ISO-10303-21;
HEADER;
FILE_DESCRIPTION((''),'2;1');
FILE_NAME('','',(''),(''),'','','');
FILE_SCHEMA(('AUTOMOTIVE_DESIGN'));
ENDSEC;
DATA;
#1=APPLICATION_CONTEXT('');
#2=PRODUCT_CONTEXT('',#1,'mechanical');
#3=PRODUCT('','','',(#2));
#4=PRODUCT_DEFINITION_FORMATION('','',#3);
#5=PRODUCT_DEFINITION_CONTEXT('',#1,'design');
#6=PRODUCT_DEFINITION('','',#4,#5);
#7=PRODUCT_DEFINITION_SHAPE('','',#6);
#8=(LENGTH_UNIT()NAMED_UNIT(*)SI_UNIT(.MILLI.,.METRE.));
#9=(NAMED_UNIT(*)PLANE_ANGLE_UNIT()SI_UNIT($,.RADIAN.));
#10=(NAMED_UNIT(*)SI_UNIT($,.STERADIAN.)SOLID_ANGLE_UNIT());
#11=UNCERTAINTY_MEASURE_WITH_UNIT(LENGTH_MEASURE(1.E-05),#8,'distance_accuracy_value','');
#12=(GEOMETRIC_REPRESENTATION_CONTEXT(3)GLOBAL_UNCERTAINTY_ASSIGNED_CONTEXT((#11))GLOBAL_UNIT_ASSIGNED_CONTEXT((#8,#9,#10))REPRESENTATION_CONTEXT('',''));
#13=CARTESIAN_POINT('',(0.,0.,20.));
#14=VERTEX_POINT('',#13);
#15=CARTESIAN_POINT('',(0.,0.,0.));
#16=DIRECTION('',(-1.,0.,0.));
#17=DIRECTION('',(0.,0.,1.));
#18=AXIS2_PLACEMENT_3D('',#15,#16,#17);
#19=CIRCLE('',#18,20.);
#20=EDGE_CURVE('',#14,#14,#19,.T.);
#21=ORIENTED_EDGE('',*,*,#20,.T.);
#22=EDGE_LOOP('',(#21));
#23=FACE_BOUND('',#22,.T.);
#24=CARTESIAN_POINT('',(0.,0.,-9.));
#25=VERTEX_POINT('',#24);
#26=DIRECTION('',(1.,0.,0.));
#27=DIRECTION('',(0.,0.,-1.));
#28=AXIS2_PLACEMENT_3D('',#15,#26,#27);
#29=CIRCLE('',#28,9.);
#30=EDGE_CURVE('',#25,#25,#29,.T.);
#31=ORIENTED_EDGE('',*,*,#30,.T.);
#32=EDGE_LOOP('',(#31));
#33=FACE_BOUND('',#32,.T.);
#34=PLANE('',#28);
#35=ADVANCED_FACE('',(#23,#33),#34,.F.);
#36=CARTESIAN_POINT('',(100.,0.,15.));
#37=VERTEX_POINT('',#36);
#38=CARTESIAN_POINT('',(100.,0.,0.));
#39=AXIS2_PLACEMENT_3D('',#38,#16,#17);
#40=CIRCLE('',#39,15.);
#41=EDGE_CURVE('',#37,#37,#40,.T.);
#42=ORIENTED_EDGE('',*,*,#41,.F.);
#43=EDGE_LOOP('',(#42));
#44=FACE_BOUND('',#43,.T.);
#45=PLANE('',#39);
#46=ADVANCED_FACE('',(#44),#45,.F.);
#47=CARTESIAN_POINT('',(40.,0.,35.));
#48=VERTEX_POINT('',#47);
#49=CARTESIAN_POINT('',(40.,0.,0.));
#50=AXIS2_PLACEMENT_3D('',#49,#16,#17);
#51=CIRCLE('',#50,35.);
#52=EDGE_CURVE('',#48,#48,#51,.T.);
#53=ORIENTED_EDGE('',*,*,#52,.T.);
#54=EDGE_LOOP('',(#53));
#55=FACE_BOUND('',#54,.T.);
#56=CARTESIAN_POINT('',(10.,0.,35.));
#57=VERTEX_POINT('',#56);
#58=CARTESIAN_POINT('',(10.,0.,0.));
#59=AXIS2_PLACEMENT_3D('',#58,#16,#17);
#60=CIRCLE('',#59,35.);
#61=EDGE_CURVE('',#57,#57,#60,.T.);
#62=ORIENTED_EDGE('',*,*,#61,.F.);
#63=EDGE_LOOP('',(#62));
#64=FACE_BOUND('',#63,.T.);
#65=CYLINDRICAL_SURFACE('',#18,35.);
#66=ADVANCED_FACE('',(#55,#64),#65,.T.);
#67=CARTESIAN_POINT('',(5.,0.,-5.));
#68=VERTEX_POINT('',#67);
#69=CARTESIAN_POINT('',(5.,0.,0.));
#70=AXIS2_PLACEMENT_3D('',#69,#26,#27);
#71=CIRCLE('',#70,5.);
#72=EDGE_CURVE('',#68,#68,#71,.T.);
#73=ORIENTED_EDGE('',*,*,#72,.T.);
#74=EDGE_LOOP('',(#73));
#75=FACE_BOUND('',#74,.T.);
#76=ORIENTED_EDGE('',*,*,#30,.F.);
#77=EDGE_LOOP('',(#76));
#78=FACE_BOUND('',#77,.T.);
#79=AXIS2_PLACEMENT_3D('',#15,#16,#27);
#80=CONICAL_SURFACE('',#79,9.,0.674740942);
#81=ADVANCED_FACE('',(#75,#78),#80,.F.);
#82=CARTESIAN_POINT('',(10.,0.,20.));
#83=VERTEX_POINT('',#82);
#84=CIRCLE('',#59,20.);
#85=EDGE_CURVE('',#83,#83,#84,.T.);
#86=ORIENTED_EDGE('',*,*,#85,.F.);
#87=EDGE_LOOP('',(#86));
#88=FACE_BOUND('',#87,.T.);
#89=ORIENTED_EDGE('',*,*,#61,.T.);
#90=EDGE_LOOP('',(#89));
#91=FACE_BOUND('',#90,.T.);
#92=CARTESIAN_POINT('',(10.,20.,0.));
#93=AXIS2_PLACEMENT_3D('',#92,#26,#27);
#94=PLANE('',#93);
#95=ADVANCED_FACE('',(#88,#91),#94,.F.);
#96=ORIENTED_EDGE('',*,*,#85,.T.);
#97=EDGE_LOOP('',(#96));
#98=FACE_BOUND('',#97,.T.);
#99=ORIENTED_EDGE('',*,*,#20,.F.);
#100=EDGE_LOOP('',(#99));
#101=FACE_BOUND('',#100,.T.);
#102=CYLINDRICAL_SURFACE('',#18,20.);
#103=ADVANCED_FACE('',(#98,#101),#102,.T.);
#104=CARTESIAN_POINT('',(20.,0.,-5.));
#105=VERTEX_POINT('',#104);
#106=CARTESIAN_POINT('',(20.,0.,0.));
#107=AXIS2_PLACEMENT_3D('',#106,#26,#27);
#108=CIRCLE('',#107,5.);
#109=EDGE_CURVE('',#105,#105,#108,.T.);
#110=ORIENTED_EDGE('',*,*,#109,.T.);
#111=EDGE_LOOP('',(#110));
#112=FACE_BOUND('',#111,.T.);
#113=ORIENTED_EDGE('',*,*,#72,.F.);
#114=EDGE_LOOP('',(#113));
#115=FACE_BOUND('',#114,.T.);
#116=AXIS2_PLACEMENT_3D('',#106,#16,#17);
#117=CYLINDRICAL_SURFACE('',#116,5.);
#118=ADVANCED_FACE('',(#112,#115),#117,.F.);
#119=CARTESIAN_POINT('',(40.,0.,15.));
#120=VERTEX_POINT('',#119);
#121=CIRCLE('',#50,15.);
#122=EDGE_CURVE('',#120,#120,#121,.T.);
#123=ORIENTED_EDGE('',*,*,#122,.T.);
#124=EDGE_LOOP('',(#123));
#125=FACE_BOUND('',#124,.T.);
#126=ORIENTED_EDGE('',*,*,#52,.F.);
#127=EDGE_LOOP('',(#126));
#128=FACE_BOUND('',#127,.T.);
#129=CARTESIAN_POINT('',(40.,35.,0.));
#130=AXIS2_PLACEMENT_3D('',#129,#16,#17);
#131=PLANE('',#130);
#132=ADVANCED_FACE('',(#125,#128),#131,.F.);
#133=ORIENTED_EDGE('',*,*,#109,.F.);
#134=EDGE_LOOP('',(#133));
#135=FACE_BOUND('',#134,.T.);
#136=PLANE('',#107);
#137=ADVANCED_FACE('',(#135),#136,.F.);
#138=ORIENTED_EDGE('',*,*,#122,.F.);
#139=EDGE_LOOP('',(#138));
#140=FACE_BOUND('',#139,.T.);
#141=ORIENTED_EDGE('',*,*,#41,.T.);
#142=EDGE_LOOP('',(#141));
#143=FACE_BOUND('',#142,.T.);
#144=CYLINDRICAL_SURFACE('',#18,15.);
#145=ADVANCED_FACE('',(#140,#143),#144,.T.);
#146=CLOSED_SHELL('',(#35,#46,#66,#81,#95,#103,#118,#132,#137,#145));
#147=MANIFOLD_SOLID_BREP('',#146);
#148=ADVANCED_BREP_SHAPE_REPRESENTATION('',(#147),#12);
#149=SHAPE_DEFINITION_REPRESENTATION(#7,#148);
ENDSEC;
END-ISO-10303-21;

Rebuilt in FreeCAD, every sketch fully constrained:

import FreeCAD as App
import Part
import Sketcher

V = App.Vector


def add_polygon(sketch, points):
    """Adds a closed chain of lines whose ends are joined by coincident constraints."""
    first, n = sketch.GeometryCount, len(points)
    for a, b in zip(points, points[1:] + points[:1]):
        sketch.addGeometry(Part.LineSegment(App.Vector(*a, 0), App.Vector(*b, 0)), False)
    for i in range(n):
        sketch.addConstraint(Sketcher.Constraint("Coincident", first + i, 2, first + (i + 1) % n, 1))

doc = App.newDocument("Part")
body = doc.addObject("PartDesign::Body", "Body")

# Sketch on XY plane
sketch1 = doc.addObject("Sketcher::SketchObject", "Sketch")
body.addObject(sketch1)
sketch1.AttachmentSupport = (doc.XY_Plane, [""])
sketch1.MapMode = "FlatFace"
add_polygon(sketch1, [(0, 0), (100, 0), (100, 15), (40, 15), (40, 35), (10, 35), (10, 20), (0, 20)])  # lines 0-7
sketch1.addConstraint([
    Sketcher.Constraint("Horizontal", 0),
    Sketcher.Constraint("Vertical", 1),
    Sketcher.Constraint("Horizontal", 2),
    Sketcher.Constraint("Vertical", 3),
    Sketcher.Constraint("Horizontal", 4),
    Sketcher.Constraint("Vertical", 5),
    Sketcher.Constraint("Horizontal", 6),
    Sketcher.Constraint("Vertical", 7),
    Sketcher.Constraint("Coincident", 7, 2, -1, 1),
    Sketcher.Constraint("Equal", 1, 5),
    Sketcher.Constraint("DistanceX", 0, 1, 0, 2, 100.0),
    Sketcher.Constraint("DistanceX", 2, 2, 2, 1, 60.0),
    Sketcher.Constraint("DistanceX", 4, 2, 4, 1, 30.0),
    Sketcher.Constraint("DistanceY", 1, 1, 1, 2, 15.0),
    Sketcher.Constraint("DistanceY", 3, 1, 3, 2, 20.0),
])
revolution = doc.addObject("PartDesign::Revolution", "Revolution")
body.addObject(revolution)
revolution.Profile = sketch1
revolution.ReferenceAxis = (sketch1, ["H_Axis"])
revolution.Angle = 360

# Sketch on YZ plane
sketch2 = doc.addObject("Sketcher::SketchObject", "Sketch001")
body.addObject(sketch2)
sketch2.AttachmentSupport = (doc.YZ_Plane, [""])
sketch2.MapMode = "FlatFace"
sketch2.addGeometry(Part.Circle(V(0, 0, 0), V(0, 0, 1), 5), False)
sketch2.addConstraint([
    Sketcher.Constraint("Coincident", 0, 3, -1, 1),
    Sketcher.Constraint("Diameter", 0, 10.0),
])
pocket1 = doc.addObject("PartDesign::Pocket", "Pocket")
body.addObject(pocket1)
pocket1.Profile = sketch2
pocket1.Length = 20
pocket1.Reversed = True

# Sketch on YZ plane
sketch3 = doc.addObject("Sketcher::SketchObject", "Sketch002")
body.addObject(sketch3)
sketch3.AttachmentSupport = (doc.YZ_Plane, [""])
sketch3.MapMode = "FlatFace"
sketch3.addGeometry(Part.Circle(V(0, 0, 0), V(0, 0, 1), 9), False)
sketch3.addConstraint([
    Sketcher.Constraint("Coincident", 0, 3, -1, 1),
    Sketcher.Constraint("Diameter", 0, 18.0),
])
pocket2 = doc.addObject("PartDesign::Pocket", "Pocket001")
body.addObject(pocket2)
pocket2.Profile = sketch3
pocket2.Length = 5
pocket2.Reversed = True
pocket2.TaperAngle = -38.659808

doc.recompute()
